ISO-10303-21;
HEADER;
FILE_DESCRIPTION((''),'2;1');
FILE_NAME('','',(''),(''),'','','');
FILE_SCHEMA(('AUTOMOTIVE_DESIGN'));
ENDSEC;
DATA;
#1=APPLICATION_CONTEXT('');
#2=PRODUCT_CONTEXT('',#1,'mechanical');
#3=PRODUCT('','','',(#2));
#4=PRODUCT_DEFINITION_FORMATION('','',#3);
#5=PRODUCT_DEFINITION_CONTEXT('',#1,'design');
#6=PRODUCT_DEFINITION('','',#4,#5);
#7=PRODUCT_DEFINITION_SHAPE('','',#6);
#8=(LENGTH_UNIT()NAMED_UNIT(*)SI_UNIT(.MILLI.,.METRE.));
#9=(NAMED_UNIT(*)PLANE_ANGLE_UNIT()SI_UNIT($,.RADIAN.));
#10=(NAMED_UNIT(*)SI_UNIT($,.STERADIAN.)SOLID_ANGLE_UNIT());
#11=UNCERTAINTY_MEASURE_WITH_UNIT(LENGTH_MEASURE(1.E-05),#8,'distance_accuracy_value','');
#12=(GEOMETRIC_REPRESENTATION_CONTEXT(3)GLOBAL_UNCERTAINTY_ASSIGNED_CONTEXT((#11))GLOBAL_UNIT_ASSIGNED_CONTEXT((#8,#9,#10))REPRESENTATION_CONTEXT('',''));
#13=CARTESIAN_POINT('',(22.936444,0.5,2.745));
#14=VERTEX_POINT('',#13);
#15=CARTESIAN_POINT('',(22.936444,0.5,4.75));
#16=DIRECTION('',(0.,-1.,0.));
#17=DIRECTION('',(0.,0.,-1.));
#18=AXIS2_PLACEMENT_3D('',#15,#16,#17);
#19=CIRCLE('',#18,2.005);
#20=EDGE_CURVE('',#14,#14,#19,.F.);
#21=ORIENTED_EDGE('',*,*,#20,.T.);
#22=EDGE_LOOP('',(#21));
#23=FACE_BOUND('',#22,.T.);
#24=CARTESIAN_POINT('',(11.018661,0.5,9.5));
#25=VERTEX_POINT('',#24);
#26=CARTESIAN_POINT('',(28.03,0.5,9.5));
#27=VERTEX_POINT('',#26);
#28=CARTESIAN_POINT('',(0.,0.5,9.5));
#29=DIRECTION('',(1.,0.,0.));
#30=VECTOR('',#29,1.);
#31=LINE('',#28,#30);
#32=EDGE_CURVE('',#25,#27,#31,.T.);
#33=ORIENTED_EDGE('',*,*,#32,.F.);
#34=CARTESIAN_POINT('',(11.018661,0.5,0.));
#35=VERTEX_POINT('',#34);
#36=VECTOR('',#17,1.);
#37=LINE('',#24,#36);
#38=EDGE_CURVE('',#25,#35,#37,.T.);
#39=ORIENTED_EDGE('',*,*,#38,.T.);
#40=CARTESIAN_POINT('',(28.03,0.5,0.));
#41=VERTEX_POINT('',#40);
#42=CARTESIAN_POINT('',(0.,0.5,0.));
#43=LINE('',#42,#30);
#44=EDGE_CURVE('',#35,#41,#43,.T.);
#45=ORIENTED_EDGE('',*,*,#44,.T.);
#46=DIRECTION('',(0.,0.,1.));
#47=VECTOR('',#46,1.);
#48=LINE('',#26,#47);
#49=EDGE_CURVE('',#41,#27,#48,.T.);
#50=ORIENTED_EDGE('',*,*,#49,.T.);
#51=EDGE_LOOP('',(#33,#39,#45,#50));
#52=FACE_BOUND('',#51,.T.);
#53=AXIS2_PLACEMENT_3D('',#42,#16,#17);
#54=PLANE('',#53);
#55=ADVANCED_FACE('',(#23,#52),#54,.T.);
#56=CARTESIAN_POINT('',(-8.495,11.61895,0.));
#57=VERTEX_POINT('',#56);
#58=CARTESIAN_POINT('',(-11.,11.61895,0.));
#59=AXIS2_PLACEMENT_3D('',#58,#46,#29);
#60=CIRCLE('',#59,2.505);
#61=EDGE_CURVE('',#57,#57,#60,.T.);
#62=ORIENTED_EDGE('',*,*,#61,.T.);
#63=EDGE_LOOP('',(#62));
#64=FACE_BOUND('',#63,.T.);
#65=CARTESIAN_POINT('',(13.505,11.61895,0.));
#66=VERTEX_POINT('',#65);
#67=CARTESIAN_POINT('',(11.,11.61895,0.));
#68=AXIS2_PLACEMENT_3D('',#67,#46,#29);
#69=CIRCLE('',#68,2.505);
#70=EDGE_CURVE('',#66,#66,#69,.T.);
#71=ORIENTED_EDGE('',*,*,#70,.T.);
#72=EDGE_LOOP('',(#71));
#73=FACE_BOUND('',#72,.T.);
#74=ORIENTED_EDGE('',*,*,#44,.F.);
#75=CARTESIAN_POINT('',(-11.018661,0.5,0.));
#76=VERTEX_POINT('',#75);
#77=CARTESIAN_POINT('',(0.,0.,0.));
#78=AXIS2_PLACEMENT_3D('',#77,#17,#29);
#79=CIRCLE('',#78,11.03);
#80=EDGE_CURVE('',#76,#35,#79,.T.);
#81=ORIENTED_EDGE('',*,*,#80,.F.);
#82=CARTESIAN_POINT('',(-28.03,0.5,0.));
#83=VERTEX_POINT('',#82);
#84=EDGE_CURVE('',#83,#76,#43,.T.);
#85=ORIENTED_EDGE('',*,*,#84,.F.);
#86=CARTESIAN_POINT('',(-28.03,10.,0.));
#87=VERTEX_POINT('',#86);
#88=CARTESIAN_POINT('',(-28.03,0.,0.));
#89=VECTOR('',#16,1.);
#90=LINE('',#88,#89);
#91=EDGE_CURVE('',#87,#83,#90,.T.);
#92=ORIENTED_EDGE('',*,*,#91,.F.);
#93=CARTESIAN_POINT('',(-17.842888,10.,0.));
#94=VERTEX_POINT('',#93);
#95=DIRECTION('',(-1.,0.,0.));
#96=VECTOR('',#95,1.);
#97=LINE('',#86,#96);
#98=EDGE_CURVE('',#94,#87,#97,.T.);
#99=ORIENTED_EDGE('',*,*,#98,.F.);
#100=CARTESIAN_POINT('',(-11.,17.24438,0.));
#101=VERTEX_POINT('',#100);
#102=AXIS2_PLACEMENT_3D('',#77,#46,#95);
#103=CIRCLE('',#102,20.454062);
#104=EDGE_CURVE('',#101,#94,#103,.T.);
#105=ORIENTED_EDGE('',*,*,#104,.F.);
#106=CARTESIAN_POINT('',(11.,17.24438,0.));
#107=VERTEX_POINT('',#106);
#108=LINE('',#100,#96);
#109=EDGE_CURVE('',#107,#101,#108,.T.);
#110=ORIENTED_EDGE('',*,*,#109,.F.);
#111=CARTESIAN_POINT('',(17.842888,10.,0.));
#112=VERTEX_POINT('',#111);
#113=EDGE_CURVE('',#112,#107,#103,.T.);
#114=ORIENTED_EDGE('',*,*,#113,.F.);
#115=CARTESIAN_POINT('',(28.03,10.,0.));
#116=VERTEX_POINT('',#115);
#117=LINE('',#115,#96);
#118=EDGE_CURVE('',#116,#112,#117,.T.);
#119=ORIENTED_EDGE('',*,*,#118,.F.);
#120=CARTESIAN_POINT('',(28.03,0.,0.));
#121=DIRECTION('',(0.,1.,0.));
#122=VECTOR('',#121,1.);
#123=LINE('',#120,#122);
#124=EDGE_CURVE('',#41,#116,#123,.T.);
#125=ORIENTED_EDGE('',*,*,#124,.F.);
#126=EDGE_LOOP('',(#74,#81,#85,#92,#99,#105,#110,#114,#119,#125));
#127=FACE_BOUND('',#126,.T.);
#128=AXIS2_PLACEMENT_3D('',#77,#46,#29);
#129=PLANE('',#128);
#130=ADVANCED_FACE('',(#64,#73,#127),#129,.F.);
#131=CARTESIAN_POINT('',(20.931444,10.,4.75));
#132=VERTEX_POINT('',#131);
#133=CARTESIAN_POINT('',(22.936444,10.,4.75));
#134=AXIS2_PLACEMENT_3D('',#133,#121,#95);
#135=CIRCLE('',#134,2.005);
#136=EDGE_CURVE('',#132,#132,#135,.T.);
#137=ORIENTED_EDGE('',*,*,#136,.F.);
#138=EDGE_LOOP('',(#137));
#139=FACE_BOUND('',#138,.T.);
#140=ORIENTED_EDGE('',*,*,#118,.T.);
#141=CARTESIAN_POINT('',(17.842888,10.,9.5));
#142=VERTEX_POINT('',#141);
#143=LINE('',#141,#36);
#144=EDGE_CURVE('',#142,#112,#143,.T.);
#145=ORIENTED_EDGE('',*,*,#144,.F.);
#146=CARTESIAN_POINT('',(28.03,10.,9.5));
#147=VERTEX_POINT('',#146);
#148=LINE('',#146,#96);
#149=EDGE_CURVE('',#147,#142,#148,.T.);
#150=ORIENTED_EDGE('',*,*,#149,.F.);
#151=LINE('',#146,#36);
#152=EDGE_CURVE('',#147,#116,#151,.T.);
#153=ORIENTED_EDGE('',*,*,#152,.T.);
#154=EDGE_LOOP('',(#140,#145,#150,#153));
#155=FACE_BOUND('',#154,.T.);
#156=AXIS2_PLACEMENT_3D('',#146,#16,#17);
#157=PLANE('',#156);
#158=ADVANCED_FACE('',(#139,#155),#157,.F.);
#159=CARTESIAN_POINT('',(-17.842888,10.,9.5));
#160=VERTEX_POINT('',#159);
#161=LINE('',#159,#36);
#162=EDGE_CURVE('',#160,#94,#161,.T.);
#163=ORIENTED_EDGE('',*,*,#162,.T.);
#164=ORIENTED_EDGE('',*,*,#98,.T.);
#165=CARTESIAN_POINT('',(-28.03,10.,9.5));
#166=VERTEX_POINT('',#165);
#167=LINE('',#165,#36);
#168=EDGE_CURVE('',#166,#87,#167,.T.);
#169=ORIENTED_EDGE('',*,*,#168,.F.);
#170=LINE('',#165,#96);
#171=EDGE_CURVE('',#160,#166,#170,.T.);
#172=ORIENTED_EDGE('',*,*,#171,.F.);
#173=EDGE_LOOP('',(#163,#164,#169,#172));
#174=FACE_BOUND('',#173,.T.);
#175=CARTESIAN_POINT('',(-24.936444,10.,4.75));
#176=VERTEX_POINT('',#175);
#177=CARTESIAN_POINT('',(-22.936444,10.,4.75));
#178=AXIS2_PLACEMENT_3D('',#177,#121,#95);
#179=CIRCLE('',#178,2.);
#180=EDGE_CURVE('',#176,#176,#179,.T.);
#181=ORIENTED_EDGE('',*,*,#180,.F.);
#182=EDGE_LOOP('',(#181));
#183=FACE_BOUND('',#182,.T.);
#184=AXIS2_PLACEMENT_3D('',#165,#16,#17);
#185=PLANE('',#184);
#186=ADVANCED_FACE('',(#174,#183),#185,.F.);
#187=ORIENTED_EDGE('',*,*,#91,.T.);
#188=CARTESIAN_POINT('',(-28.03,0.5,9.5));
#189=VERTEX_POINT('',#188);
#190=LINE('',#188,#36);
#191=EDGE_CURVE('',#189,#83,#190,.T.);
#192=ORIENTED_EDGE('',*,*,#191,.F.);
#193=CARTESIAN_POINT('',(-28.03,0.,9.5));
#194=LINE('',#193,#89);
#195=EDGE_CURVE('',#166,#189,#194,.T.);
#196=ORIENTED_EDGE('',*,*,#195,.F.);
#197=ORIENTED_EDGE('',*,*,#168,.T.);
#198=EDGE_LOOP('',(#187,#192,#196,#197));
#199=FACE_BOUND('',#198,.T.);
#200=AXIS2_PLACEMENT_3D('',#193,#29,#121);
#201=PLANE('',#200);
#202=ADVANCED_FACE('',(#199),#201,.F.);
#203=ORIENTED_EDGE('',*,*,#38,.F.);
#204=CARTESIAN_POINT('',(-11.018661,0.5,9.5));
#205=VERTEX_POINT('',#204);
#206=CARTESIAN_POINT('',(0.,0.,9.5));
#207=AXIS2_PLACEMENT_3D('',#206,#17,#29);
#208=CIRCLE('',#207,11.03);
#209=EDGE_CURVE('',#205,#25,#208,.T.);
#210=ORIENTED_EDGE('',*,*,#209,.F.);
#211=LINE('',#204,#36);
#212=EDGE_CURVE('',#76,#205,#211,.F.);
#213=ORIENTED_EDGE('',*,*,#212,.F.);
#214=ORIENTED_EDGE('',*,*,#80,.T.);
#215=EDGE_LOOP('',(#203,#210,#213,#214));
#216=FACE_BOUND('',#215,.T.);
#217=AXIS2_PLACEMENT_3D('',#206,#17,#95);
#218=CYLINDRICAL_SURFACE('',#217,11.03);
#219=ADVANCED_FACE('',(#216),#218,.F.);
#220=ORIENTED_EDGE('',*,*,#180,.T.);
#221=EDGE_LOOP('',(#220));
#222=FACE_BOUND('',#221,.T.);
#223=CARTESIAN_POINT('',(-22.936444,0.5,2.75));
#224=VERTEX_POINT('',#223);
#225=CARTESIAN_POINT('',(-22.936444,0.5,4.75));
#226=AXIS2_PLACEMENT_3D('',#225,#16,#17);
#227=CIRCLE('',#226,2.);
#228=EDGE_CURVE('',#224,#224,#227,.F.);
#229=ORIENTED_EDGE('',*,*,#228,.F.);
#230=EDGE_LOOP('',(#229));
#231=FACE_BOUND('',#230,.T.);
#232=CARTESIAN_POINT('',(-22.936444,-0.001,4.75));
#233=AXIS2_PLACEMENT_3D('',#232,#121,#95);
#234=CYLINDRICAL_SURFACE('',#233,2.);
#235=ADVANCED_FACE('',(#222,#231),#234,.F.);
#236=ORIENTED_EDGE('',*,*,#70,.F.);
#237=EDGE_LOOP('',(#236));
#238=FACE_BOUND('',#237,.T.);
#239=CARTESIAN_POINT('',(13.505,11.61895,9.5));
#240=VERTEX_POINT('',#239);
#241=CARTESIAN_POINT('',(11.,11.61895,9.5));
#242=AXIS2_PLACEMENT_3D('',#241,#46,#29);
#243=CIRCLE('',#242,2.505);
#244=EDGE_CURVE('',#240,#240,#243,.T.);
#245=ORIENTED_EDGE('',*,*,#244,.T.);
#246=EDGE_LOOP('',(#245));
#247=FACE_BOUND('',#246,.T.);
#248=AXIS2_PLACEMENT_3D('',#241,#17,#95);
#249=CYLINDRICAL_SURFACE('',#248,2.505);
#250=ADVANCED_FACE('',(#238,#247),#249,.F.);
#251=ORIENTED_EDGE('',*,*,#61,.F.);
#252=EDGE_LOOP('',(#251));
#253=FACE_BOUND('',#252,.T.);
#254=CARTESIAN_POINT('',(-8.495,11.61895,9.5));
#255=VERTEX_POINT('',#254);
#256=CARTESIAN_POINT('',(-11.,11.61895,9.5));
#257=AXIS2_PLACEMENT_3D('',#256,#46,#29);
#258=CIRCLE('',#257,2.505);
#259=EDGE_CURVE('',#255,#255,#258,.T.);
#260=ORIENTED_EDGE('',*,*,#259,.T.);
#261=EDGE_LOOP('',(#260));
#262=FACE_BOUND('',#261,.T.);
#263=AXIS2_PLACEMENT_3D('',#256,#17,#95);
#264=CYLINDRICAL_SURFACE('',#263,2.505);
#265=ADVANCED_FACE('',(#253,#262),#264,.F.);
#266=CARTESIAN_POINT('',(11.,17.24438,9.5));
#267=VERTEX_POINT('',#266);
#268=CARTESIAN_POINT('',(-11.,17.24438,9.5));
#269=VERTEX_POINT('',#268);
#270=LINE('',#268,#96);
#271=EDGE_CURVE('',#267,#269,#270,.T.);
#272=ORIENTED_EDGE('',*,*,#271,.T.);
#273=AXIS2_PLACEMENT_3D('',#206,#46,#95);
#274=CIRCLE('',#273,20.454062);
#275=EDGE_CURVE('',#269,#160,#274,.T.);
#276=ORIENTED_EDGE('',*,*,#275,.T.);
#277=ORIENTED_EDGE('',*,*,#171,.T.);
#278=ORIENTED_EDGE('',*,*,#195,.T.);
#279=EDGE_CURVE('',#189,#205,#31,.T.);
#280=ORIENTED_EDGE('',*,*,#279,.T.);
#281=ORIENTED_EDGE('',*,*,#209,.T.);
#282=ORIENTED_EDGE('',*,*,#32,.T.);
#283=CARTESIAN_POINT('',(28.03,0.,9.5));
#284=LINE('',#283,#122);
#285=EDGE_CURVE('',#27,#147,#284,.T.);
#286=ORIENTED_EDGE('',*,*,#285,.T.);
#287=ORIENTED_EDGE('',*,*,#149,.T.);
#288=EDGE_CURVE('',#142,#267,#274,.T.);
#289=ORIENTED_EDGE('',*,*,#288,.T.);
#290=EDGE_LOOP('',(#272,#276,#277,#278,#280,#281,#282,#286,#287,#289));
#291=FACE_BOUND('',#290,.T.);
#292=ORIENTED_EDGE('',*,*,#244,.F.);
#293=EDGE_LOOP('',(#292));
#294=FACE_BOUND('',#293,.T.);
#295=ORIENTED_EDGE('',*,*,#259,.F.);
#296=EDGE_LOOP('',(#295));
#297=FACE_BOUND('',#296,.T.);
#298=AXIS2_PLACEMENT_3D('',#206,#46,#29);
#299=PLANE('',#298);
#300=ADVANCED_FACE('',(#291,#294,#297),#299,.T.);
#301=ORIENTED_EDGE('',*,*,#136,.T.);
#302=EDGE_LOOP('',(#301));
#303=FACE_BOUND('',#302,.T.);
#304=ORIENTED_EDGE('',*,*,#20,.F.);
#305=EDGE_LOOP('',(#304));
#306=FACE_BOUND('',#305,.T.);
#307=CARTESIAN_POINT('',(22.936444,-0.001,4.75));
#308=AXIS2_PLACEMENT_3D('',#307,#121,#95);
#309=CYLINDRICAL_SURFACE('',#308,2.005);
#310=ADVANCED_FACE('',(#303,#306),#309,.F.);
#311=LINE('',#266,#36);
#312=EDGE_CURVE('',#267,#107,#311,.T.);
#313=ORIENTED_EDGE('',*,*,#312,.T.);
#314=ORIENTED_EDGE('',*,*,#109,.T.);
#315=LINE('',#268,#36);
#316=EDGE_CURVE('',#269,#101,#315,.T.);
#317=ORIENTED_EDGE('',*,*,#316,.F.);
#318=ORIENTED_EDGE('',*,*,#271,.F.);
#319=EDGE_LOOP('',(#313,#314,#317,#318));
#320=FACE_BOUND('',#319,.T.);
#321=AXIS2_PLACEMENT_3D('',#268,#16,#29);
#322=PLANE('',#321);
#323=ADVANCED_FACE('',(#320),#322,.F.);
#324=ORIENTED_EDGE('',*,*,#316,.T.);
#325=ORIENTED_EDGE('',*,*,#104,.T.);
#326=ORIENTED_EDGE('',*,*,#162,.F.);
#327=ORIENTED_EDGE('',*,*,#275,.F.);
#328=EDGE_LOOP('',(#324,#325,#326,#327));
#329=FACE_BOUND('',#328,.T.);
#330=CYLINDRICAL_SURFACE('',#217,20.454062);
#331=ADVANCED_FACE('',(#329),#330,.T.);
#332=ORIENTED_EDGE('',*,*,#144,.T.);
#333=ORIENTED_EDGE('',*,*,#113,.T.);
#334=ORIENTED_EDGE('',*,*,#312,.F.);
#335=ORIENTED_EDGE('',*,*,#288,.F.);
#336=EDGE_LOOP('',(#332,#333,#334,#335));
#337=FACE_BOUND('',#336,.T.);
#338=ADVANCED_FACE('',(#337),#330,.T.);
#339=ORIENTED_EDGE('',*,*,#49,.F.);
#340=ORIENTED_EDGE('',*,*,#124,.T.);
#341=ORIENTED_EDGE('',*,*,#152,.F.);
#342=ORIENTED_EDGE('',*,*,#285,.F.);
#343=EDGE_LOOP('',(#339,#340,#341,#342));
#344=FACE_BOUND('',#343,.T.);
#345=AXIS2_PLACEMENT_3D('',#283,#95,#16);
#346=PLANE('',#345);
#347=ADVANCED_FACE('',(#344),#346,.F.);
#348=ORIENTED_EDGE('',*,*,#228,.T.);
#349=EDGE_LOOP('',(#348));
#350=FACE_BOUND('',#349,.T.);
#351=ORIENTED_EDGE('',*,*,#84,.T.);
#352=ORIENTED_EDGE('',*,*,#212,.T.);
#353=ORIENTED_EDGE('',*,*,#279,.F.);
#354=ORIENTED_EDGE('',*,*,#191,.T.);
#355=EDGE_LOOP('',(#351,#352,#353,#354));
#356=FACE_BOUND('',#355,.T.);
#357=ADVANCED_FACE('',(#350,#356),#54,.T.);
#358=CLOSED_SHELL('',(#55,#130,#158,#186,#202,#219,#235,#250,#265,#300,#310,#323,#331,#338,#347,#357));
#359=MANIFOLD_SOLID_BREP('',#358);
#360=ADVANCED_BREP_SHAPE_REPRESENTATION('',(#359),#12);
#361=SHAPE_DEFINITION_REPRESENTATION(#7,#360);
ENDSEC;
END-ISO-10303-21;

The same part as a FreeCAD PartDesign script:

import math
import FreeCAD as App
import Part
import Sketcher
Q = App.Units.Quantity


def add_polygon(sketch, points):
    """Adds a closed chain of lines whose ends are joined by coincident constraints."""
    first, n = sketch.GeometryCount, len(points)
    for a, b in zip(points, points[1:] + points[:1]):
        sketch.addGeometry(Part.LineSegment(App.Vector(*a, 0), App.Vector(*b, 0)), False)
    for i in range(n):
        sketch.addConstraint(Sketcher.Constraint("Coincident", first + i, 2, first + (i + 1) % n, 1))

doc = App.newDocument("Part")
body = doc.addObject("PartDesign::Body", "Body")

sketch1 = body.newObject("Sketcher::SketchObject", "Sketch")
sketch1.AttachmentSupport = (doc.getObject("XY_Plane"), [""])
sketch1.MapMode = "FlatFace"
sketch1.addGeometry([
    Part.LineSegment(App.Vector(-28, 0, 0), App.Vector(-11, 0, 0)),
    Part.ArcOfCircle(Part.Circle(App.Vector(0, 0, 0), App.Vector(0, 0, 1), 11), math.radians(0), math.radians(180)),
    Part.LineSegment(App.Vector(11, 0, 0), App.Vector(28, 0, 0)),
    Part.LineSegment(App.Vector(28, 0, 0), App.Vector(28, 10, 0)),
    Part.LineSegment(App.Vector(28, 10, 0), App.Vector(17.8, 10, 0)),
    Part.ArcOfCircle(Part.Circle(App.Vector(0, 0, 0), App.Vector(0, 0, 1), 20.5), math.radians(29), math.radians(57)),
    Part.LineSegment(App.Vector(11, 17.2, 0), App.Vector(-11, 17.2, 0)),
    Part.ArcOfCircle(Part.Circle(App.Vector(0, 0, 0), App.Vector(0, 0, 1), 20.5), math.radians(123), math.radians(151)),
    Part.LineSegment(App.Vector(-17.8, 10, 0), App.Vector(-28, 10, 0)),
    Part.LineSegment(App.Vector(-28, 10, 0), App.Vector(-28, 0, 0)),
    Part.Circle(App.Vector(11, 11.6, 0), App.Vector(0, 0, 1), 2.5),
    Part.Circle(App.Vector(-11, 11.6, 0), App.Vector(0, 0, 1), 2.5),
], False)
sketch1.addConstraint([
    Sketcher.Constraint("Coincident", 0, 2, 1, 2),
    Sketcher.Constraint("Coincident", 1, 1, 2, 1),
    Sketcher.Constraint("Coincident", 2, 2, 3, 1),
    Sketcher.Constraint("Coincident", 3, 2, 4, 1),
    Sketcher.Constraint("Coincident", 4, 2, 5, 1),
    Sketcher.Constraint("Coincident", 5, 2, 6, 1),
    Sketcher.Constraint("Coincident", 6, 2, 7, 1),
    Sketcher.Constraint("Coincident", 7, 2, 8, 1),
    Sketcher.Constraint("Coincident", 8, 2, 9, 1),
    Sketcher.Constraint("Coincident", 9, 2, 0, 1),
    Sketcher.Constraint("Horizontal", 0),
    Sketcher.Constraint("Horizontal", 2),
    Sketcher.Constraint("Vertical", 3),
    Sketcher.Constraint("Horizontal", 4),
    Sketcher.Constraint("Horizontal", 6),
    Sketcher.Constraint("Horizontal", 8),
    Sketcher.Constraint("Vertical", 9),
    Sketcher.Constraint("Coincident", 1, 3, -1, 1),
    Sketcher.Constraint("Coincident", 5, 3, -1, 1),
    Sketcher.Constraint("Coincident", 7, 3, -1, 1),
    Sketcher.Constraint("Equal", 5, 7),
    Sketcher.Constraint("Equal", 10, 11),
    Sketcher.Constraint("Symmetric", 2, 2, 9, 2, -1, 1),
    Sketcher.Constraint("Symmetric", 10, 3, 11, 3, -2),
    Sketcher.Constraint("PointOnObject", 0, 2, -1),
    Sketcher.Constraint("Horizontal", 4, 2, 7, 2),
    Sketcher.Constraint("Vertical", 10, 3, 5, 2),
    Sketcher.Constraint("Diameter", 10, Q("5.01 mm")),
    Sketcher.Constraint("DistanceX", 0, 1, 0, 2, Q("17 mm")),
    Sketcher.Constraint("DistanceX", 6, 2, 6, 1, Q("22 mm")),
    Sketcher.Constraint("DistanceY", 3, 1, 3, 2, Q("10 mm")),
    Sketcher.Constraint("Radius", 1, Q("11.03 mm")),
    Sketcher.Constraint("Radius", 5, Q("20.454062 mm")),
    Sketcher.Constraint("DistanceY", -1, 1, 10, 3, Q("11.61895 mm")),
])
pad1 = body.newObject("PartDesign::Pad", "Pad")
pad1.Profile = sketch1
pad1.Length = 9.5

sketch2 = body.newObject("Sketcher::SketchObject", "Sketch001")
sketch2.AttachmentSupport = (doc.getObject("XZ_Plane"), [""])
sketch2.MapMode = "FlatFace"
sketch2.AttachmentOffset = App.Placement(App.Vector(0, 0, -10), App.Rotation())
sketch2.addGeometry(Part.Circle(App.Vector(22.9, 4.8, 0), App.Vector(0, 0, 1), 2), False)
sketch2.addConstraint([
    Sketcher.Constraint("Diameter", 0, Q("4.01 mm")),
    Sketcher.Constraint("DistanceY", -1, 1, 0, 3, Q("4.75 mm")),
    Sketcher.Constraint("DistanceX", -1, 1, 0, 3, Q("22.936444 mm")),
])
pocket1 = body.newObject("PartDesign::Pocket", "Pocket")
pocket1.Profile = sketch2
pocket1.Type = "UpToFirst"
pocket1.Reversed = True

sketch3 = body.newObject("Sketcher::SketchObject", "Sketch002")
sketch3.AttachmentSupport = (doc.getObject("XZ_Plane"), [""])
sketch3.MapMode = "FlatFace"
sketch3.AttachmentOffset = App.Placement(App.Vector(0, 0, -10), App.Rotation())
sketch3.addGeometry(Part.Circle(App.Vector(-22.9, 4.8, 0), App.Vector(0, 0, 1), 2), False)
sketch3.addConstraint([
    Sketcher.Constraint("Diameter", 0, Q("4 mm")),
    Sketcher.Constraint("DistanceY", -1, 1, 0, 3, Q("4.75 mm")),
    Sketcher.Constraint("DistanceX", 0, 3, -1, 1, Q("22.936444 mm")),
])
pocket2 = body.newObject("PartDesign::Pocket", "Pocket001")
pocket2.Profile = sketch3
pocket2.Type = "UpToFirst"
pocket2.Reversed = True

sketch4 = body.newObject("Sketcher::SketchObject", "Sketch003")
sketch4.AttachmentSupport = (doc.getObject("XZ_Plane"), [""])
sketch4.MapMode = "FlatFace"
add_polygon(sketch4, [(-35, 11), (-35, -7), (38, -7), (38, 11)])
sketch4.addConstraint([
    Sketcher.Constraint("Vertical", 0),
    Sketcher.Constraint("Horizontal", 1),
    Sketcher.Constraint("Vertical", 2),
    Sketcher.Constraint("Horizontal", 3),
    Sketcher.Constraint("DistanceX", -1, 1, 1, 2, Q("37.799001 mm")),
    Sketcher.Constraint("DistanceY", 0, 2, 0, 1, Q("18.148858 mm")),
    Sketcher.Constraint("DistanceX", 1, 1, 1, 2, Q("72.995776 mm")),
    Sketcher.Constraint("DistanceY", 0, 2, -1, 1, Q("7.267266 mm")),
])
pocket3 = body.newObject("PartDesign::Pocket", "Pocket002")
pocket3.Profile = sketch4
pocket3.Length = 0.5

doc.recompute()
